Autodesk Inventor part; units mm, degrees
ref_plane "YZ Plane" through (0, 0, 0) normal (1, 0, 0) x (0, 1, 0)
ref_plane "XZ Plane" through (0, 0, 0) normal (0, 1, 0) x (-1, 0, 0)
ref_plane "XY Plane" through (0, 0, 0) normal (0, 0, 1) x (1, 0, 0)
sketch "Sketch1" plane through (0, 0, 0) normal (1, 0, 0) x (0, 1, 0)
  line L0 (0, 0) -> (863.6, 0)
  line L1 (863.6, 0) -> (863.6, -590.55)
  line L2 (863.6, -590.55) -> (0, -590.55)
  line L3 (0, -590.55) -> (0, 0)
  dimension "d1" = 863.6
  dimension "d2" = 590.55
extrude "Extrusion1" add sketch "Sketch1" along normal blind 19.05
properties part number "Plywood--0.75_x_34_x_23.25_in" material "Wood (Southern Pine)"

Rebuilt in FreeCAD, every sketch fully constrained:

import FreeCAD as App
import Part
import Sketcher
Q = App.Units.Quantity

doc = App.newDocument("Part")
body = doc.addObject("PartDesign::Body", "Body")

# Sketch on YZ plane
sketch1 = body.newObject("Sketcher::SketchObject", "Sketch")
sketch1.AttachmentSupport = (doc.getObject("YZ_Plane"), [""])
sketch1.MapMode = "FlatFace"
sketch1.addGeometry([
    Part.LineSegment(App.Vector(863.6, 0, 0), App.Vector(0, 0, 0)),
    Part.LineSegment(App.Vector(0, 0, 0), App.Vector(0, -590.55, 0)),
    Part.LineSegment(App.Vector(0, -590.55, 0), App.Vector(863.6, -590.55, 0)),
    Part.LineSegment(App.Vector(863.6, -590.55, 0), App.Vector(863.6, 0, 0)),
], False)
sketch1.addConstraint([
    Sketcher.Constraint("Coincident", 0, 2, 1, 1),
    Sketcher.Constraint("Coincident", 1, 2, 2, 1),
    Sketcher.Constraint("Coincident", 2, 2, 3, 1),
    Sketcher.Constraint("Coincident", 3, 2, 0, 1),
    Sketcher.Constraint("Horizontal", 0),
    Sketcher.Constraint("Vertical", 1),
    Sketcher.Constraint("Horizontal", 2),
    Sketcher.Constraint("Vertical", 3),
    Sketcher.Constraint("Coincident", 0, 2, -1, 1),
    Sketcher.Constraint("DistanceX", 0, 2, 0, 1, Q("34 in")),
    Sketcher.Constraint("DistanceY", 1, 2, 1, 1, Q("23.25 in")),
])
pad1 = body.newObject("PartDesign::Pad", "Pad")
pad1.Profile = sketch1
pad1.Length = Q("0.75 in")

doc.recompute()
